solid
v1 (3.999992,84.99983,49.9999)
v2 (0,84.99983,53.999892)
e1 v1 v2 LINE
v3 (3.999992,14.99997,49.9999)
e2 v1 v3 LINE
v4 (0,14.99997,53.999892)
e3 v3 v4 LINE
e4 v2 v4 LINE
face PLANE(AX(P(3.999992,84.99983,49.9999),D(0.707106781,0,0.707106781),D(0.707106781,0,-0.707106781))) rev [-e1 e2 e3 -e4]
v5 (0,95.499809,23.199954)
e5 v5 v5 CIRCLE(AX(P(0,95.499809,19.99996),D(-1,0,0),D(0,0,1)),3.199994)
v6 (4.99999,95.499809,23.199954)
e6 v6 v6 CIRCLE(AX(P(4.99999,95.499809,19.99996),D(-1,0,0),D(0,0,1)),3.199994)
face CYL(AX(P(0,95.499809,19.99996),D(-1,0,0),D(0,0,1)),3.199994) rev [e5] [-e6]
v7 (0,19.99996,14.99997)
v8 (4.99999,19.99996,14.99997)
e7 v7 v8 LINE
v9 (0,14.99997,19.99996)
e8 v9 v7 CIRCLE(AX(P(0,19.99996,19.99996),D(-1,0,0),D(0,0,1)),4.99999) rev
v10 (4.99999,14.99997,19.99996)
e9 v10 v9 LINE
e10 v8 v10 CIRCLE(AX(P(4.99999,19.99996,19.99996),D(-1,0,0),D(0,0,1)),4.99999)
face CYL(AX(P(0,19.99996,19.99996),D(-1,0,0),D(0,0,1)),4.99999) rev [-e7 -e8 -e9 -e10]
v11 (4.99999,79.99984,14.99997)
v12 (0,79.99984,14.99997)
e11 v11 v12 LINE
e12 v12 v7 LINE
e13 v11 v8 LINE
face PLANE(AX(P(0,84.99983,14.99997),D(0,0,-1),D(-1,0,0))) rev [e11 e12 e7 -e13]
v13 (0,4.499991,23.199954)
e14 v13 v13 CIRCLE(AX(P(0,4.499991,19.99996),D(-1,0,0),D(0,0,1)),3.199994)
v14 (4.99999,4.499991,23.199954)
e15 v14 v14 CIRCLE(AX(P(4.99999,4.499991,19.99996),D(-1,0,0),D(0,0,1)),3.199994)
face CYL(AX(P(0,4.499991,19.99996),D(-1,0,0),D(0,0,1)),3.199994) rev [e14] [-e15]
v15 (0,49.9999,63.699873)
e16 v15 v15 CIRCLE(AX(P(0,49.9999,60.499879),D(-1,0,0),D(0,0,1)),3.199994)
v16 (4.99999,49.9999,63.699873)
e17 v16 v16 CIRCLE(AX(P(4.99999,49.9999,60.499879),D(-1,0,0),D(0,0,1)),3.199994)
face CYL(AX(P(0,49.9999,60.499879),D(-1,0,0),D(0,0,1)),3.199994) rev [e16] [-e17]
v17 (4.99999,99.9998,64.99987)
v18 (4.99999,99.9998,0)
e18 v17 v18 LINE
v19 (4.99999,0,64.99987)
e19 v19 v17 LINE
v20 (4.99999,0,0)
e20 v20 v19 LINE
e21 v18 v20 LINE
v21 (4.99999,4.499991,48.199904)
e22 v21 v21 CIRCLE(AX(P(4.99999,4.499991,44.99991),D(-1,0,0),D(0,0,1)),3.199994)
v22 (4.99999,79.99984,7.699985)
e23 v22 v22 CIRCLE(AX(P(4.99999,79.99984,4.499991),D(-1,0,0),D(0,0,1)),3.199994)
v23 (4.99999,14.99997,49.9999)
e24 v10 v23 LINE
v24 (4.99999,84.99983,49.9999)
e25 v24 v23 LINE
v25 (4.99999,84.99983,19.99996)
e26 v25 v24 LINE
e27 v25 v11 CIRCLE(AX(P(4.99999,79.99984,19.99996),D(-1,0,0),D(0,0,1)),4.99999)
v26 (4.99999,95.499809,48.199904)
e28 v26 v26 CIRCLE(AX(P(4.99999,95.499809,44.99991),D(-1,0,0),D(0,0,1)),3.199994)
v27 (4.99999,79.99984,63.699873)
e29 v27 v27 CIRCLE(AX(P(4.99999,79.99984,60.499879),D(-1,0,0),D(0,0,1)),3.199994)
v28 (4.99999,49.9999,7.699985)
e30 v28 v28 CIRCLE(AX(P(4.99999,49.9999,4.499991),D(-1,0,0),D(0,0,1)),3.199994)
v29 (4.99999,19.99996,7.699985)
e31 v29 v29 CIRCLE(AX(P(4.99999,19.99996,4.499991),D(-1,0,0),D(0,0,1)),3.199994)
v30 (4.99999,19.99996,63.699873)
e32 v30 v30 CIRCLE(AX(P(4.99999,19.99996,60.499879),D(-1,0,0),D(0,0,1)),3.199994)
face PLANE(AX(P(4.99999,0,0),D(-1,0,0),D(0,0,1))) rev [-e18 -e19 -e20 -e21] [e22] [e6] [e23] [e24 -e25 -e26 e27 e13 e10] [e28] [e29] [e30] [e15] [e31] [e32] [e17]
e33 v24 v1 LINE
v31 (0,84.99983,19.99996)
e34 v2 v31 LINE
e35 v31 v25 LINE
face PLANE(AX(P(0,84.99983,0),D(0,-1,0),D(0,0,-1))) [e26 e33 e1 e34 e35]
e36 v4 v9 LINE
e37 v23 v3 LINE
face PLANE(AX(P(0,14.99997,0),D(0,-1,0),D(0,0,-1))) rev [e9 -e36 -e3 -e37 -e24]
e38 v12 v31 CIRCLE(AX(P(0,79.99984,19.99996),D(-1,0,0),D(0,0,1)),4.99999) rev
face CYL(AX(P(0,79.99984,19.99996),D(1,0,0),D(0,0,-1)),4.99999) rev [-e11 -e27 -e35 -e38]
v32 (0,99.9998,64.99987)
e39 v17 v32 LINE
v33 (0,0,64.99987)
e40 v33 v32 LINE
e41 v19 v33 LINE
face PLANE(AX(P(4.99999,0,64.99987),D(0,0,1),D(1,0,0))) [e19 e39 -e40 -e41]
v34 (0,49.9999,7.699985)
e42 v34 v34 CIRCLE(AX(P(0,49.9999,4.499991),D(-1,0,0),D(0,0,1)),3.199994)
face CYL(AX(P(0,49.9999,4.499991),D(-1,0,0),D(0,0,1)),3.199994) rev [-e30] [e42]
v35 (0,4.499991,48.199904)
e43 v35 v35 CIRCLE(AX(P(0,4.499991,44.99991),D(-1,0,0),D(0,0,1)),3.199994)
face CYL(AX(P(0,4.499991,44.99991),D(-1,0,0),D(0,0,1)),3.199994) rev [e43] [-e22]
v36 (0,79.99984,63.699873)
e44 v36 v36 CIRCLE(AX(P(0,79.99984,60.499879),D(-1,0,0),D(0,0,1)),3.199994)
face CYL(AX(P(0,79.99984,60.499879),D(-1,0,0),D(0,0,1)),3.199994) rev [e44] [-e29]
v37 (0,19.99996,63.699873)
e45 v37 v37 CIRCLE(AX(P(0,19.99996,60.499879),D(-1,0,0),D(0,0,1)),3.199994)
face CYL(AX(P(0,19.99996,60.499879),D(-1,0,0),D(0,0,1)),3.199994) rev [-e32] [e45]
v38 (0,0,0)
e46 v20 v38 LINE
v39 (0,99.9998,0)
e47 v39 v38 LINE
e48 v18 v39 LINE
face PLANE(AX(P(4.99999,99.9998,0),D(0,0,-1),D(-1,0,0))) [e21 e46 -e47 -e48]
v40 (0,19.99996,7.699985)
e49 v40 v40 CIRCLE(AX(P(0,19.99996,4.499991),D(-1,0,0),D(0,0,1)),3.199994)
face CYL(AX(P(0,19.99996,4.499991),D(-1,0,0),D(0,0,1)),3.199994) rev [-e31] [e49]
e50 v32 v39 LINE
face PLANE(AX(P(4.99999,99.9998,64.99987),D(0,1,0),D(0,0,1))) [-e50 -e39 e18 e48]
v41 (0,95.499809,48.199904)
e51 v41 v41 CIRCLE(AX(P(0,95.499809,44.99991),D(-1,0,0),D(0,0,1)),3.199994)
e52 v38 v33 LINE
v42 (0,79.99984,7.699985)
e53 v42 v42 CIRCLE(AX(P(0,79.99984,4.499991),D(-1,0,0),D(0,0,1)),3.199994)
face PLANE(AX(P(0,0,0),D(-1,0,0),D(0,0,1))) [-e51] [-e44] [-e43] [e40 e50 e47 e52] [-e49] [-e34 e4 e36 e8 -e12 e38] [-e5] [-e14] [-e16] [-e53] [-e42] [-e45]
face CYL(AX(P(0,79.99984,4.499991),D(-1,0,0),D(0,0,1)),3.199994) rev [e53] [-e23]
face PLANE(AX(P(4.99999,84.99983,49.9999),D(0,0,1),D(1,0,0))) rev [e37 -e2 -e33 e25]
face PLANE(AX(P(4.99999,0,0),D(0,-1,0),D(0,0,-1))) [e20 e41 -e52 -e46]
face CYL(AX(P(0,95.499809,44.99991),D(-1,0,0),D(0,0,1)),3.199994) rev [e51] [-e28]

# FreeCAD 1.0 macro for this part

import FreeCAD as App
import Part
import Sketcher
Q = App.Units.Quantity


def edges_at(feature, points):
    """Names of the edges that pass closest to the given points."""
    edges = feature.Shape.Edges
    near = lambda p: min(range(len(edges)), key=lambda i: edges[i].distToShape(Part.Vertex(*p))[0])
    return sorted({f"Edge{near(p) + 1}" for p in points})


def add_polygon(sketch, points):
    """Adds a closed chain of lines whose ends are joined by coincident constraints."""
    first, n = sketch.GeometryCount, len(points)
    for a, b in zip(points, points[1:] + points[:1]):
        sketch.addGeometry(Part.LineSegment(App.Vector(*a, 0), App.Vector(*b, 0)), False)
    for i in range(n):
        sketch.addConstraint(Sketcher.Constraint("Coincident", first + i, 2, first + (i + 1) % n, 1))

doc = App.newDocument("Part")
body = doc.addObject("PartDesign::Body", "Body")

sketch1 = body.newObject("Sketcher::SketchObject", "Sketch")
sketch1.AttachmentSupport = (doc.getObject("YZ_Plane"), [""])
sketch1.MapMode = "FlatFace"
add_polygon(sketch1, [(100, 65), (100, 0), (0, 0), (0, 65)])
sketch1.addConstraint([
    Sketcher.Constraint("Vertical", 0),
    Sketcher.Constraint("Horizontal", 1),
    Sketcher.Constraint("Vertical", 2),
    Sketcher.Constraint("Horizontal", 3),
    Sketcher.Constraint("Coincident", 1, 2, -1, 1),
    Sketcher.Constraint("DistanceX", 1, 2, 1, 1, Q("99.9998 mm")),
    Sketcher.Constraint("DistanceY", 0, 2, 0, 1, Q("64.99987 mm")),
])
pad1 = body.newObject("PartDesign::Pad", "Pad")
pad1.Profile = sketch1
pad1.Length = 4.99999

sketch2 = body.newObject("Sketcher::SketchObject", "Sketch001")
sketch2.AttachmentSupport = (doc.getObject("XZ_Plane"), [""])
sketch2.MapMode = "FlatFace"
sketch2.AttachmentOffset = App.Placement(App.Vector(0, 0, -14.99997), App.Rotation())
add_polygon(sketch2, [(0, 54), (0, 15), (5, 15), (5, 50), (4, 50)])
sketch2.addConstraint([
    Sketcher.Constraint("Vertical", 0),
    Sketcher.Constraint("Horizontal", 1),
    Sketcher.Constraint("Vertical", 2),
    Sketcher.Constraint("Horizontal", 3),
    Sketcher.Constraint("PointOnObject", 0, 2, -2),
    Sketcher.Constraint("DistanceX", 3, 2, 3, 1, Q("0.999998 mm")),
    Sketcher.Constraint("Angle", 4, Q("135 deg")),
    Sketcher.Constraint("DistanceX", 1, 1, 1, 2, Q("4.99999 mm")),
    Sketcher.Constraint("DistanceY", 2, 1, 2, 2, Q("34.99993 mm")),
    Sketcher.Constraint("DistanceY", -1, 1, 2, 2, Q("49.9999 mm")),
])
pocket1 = body.newObject("PartDesign::Pocket", "Pocket")
pocket1.Profile = sketch2
pocket1.Length = 69.99986

sketch3 = body.newObject("Sketcher::SketchObject", "Sketch002")
sketch3.AttachmentSupport = (doc.getObject("YZ_Plane"), [""])
sketch3.MapMode = "FlatFace"
sketch3.addGeometry([
    Part.Circle(App.Vector(20, 60.5, 0), App.Vector(0, 0, 1), 3.2),
    Part.Circle(App.Vector(4.5, 45, 0), App.Vector(0, 0, 1), 3.2),
    Part.Circle(App.Vector(4.5, 20, 0), App.Vector(0, 0, 1), 3.2),
    Part.Circle(App.Vector(20, 4.5, 0), App.Vector(0, 0, 1), 3.2),
    Part.Circle(App.Vector(50, 4.5, 0), App.Vector(0, 0, 1), 3.2),
    Part.Circle(App.Vector(80, 4.5, 0), App.Vector(0, 0, 1), 3.2),
    Part.Circle(App.Vector(95.5, 20, 0), App.Vector(0, 0, 1), 3.2),
    Part.Circle(App.Vector(95.5, 45, 0), App.Vector(0, 0, 1), 3.2),
    Part.Circle(App.Vector(80, 60.5, 0), App.Vector(0, 0, 1), 3.2),
    Part.Circle(App.Vector(50, 60.5, 0), App.Vector(0, 0, 1), 3.2),
], False)
sketch3.addConstraint([
    Sketcher.Constraint("Equal", 0, 1),
    Sketcher.Constraint("Equal", 1, 2),
    Sketcher.Constraint("Equal", 2, 3),
    Sketcher.Constraint("Equal", 3, 4),
    Sketcher.Constraint("Equal", 4, 5),
    Sketcher.Constraint("Equal", 5, 6),
    Sketcher.Constraint("Equal", 6, 7),
    Sketcher.Constraint("Equal", 7, 8),
    Sketcher.Constraint("Equal", 8, 9),
    Sketcher.Constraint("Horizontal", 3, 3, 4, 3),
    Sketcher.Constraint("Horizontal", 4, 3, 5, 3),
    Sketcher.Constraint("Horizontal", 2, 3, 6, 3),
    Sketcher.Constraint("Horizontal", 1, 3, 7, 3),
    Sketcher.Constraint("Horizontal", 0, 3, 8, 3),
    Sketcher.Constraint("Horizontal", 8, 3, 9, 3),
    Sketcher.Constraint("Vertical", 1, 3, 2, 3),
    Sketcher.Constraint("Vertical", 0, 3, 3, 3),
    Sketcher.Constraint("Vertical", 6, 3, 7, 3),
    Sketcher.Constraint("Vertical", 5, 3, 8, 3),
    Sketcher.Constraint("Vertical", 4, 3, 9, 3),
    Sketcher.Constraint("Diameter", 0, Q("6.399987 mm")),
    Sketcher.Constraint("DistanceX", -1, 1, 4, 3, Q("49.9999 mm")),
    Sketcher.Constraint("DistanceX", -1, 1, 0, 3, Q("19.99996 mm")),
    Sketcher.Constraint("DistanceY", -1, 1, 0, 3, Q("60.499879 mm")),
    Sketcher.Constraint("DistanceX", -1, 1, 1, 3, Q("4.499991 mm")),
    Sketcher.Constraint("DistanceY", -1, 1, 1, 3, Q("44.99991 mm")),
    Sketcher.Constraint("DistanceY", -1, 1, 2, 3, Q("19.99996 mm")),
    Sketcher.Constraint("DistanceY", -1, 1, 3, 3, Q("4.499991 mm")),
    Sketcher.Constraint("DistanceX", -1, 1, 5, 3, Q("79.99984 mm")),
    Sketcher.Constraint("DistanceX", -1, 1, 6, 3, Q("95.499809 mm")),
])
doc.recompute()
hole = body.newObject("PartDesign::Hole", "Hole")
hole.Profile = sketch3
hole.ThreadType = "None"
hole.Diameter = 6.399987
hole.DepthType = "ThroughAll"
hole.Reversed = True
doc.recompute()

fillet = body.newObject("PartDesign::Fillet", "Fillet")
fillet.Base = (hole, edges_at(hole, [(2.5, 85, 15), (2.5, 15, 15)]))
fillet.Radius = 4.99999

doc.recompute()
